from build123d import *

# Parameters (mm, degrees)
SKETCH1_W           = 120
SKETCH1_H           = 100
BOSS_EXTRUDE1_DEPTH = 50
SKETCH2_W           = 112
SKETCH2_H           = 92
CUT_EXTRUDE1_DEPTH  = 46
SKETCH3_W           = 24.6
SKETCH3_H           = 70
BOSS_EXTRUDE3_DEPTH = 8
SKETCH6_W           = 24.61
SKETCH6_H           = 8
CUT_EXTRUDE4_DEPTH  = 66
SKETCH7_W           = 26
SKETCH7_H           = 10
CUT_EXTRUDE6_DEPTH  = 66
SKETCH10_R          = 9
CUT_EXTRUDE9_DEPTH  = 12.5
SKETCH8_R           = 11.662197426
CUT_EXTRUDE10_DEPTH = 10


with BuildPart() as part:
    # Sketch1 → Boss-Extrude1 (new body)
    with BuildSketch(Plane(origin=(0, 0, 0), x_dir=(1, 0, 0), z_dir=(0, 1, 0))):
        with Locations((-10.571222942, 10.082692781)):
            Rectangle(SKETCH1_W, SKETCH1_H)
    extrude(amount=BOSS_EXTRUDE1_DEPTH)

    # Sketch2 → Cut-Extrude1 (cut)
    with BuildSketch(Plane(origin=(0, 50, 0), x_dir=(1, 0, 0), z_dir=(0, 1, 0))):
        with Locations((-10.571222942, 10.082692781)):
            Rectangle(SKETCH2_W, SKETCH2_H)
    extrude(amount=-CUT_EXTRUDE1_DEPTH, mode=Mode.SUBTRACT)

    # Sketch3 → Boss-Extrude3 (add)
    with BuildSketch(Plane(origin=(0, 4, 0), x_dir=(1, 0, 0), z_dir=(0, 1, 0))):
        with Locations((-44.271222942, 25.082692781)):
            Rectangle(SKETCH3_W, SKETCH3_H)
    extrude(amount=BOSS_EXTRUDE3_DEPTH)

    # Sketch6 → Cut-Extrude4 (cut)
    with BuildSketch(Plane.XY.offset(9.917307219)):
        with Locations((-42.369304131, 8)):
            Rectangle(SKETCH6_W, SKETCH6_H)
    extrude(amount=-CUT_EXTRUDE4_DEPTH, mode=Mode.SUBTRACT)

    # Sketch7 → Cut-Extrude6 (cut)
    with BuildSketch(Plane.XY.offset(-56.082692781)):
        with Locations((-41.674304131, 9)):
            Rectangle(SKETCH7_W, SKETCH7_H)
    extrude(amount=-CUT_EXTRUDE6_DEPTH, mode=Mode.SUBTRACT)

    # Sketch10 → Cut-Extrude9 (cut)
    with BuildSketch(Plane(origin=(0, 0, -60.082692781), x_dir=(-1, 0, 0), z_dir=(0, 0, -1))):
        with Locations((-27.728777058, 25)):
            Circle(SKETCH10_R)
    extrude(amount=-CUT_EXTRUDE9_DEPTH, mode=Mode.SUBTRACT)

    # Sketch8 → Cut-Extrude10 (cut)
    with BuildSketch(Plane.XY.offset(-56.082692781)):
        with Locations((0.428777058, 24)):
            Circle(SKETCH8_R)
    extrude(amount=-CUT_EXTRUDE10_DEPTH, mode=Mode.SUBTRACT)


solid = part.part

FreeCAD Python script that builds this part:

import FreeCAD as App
import Part
import Sketcher

V = App.Vector

doc = App.newDocument("Part")
body = doc.addObject("PartDesign::Body", "Body")

# Sketch on XZ plane
sketch1 = body.newObject("Sketcher::SketchObject", "Sketch")
sketch1.AttachmentSupport = (doc.getObject("XZ_Plane"), [""])
sketch1.MapMode = "FlatFace"
sketch1.addGeometry(Part.LineSegment(V(-70.571223, -60.082693, 0), V(-70.571223, 39.917307, 0)), False)
sketch1.addGeometry(Part.LineSegment(V(-70.571223, 39.917307, 0), V(49.428777, 39.917307, 0)), False)
sketch1.addGeometry(Part.LineSegment(V(49.428777, 39.917307, 0), V(49.428777, -60.082693, 0)), False)
sketch1.addGeometry(Part.LineSegment(V(49.428777, -60.082693, 0), V(-70.571223, -60.082693, 0)), False)
sketch1.addConstraint(Sketcher.Constraint("Coincident", 0, 2, 1, 1))
sketch1.addConstraint(Sketcher.Constraint("Coincident", 1, 2, 2, 1))
sketch1.addConstraint(Sketcher.Constraint("Coincident", 2, 2, 3, 1))
sketch1.addConstraint(Sketcher.Constraint("Coincident", 3, 2, 0, 1))
sketch1.addConstraint(Sketcher.Constraint("Vertical", 0))
sketch1.addConstraint(Sketcher.Constraint("Horizontal", 1))
sketch1.addConstraint(Sketcher.Constraint("Vertical", 2))
sketch1.addConstraint(Sketcher.Constraint("Horizontal", 3))
sketch1.addConstraint(Sketcher.Constraint("DistanceX", 1, 1, 1, 2, 120.0))
sketch1.addConstraint(Sketcher.Constraint("DistanceY", 0, 1, 0, 2, 100.0))
sketch1.addConstraint(Sketcher.Constraint("DistanceX", 0, 2, -1, 1, 70.571223))
sketch1.addConstraint(Sketcher.Constraint("DistanceY", -1, 1, 0, 2, 39.917307))
pad1 = body.newObject("PartDesign::Pad", "Pad")
pad1.Profile = sketch1
pad1.Length = 50
pad1.Reversed = True

# Sketch on XZ plane
sketch2 = body.newObject("Sketcher::SketchObject", "Sketch001")
sketch2.AttachmentSupport = (doc.getObject("XZ_Plane"), [""])
sketch2.MapMode = "FlatFace"
sketch2.AttachmentOffset = App.Placement(V(0, 0, -50), App.Rotation())
sketch2.addGeometry(Part.LineSegment(V(-66.571223, -56.082693, 0), V(-66.571223, 35.917307, 0)), False)
sketch2.addGeometry(Part.LineSegment(V(-66.571223, 35.917307, 0), V(45.428777, 35.917307, 0)), False)
sketch2.addGeometry(Part.LineSegment(V(45.428777, 35.917307, 0), V(45.428777, -56.082693, 0)), False)
sketch2.addGeometry(Part.LineSegment(V(45.428777, -56.082693, 0), V(-66.571223, -56.082693, 0)), False)
sketch2.addConstraint(Sketcher.Constraint("Coincident", 0, 2, 1, 1))
sketch2.addConstraint(Sketcher.Constraint("Coincident", 1, 2, 2, 1))
sketch2.addConstraint(Sketcher.Constraint("Coincident", 2, 2, 3, 1))
sketch2.addConstraint(Sketcher.Constraint("Coincident", 3, 2, 0, 1))
sketch2.addConstraint(Sketcher.Constraint("Vertical", 0))
sketch2.addConstraint(Sketcher.Constraint("Horizontal", 1))
sketch2.addConstraint(Sketcher.Constraint("Vertical", 2))
sketch2.addConstraint(Sketcher.Constraint("Horizontal", 3))
sketch2.addConstraint(Sketcher.Constraint("DistanceX", 1, 1, 1, 2, 112.0))
sketch2.addConstraint(Sketcher.Constraint("DistanceY", 0, 1, 0, 2, 92.0))
sketch2.addConstraint(Sketcher.Constraint("DistanceX", 0, 2, -1, 1, 66.571223))
sketch2.addConstraint(Sketcher.Constraint("DistanceY", -1, 1, 0, 2, 35.917307))
pocket1 = body.newObject("PartDesign::Pocket", "Pocket")
pocket1.Profile = sketch2
pocket1.Length = 46
pocket1.Reversed = True

# Sketch on XZ plane
sketch3 = body.newObject("Sketcher::SketchObject", "Sketch002")
sketch3.AttachmentSupport = (doc.getObject("XZ_Plane"), [""])
sketch3.MapMode = "FlatFace"
sketch3.AttachmentOffset = App.Placement(V(0, 0, -4), App.Rotation())
sketch3.addGeometry(Part.LineSegment(V(-56.571223, -60.082693, 0), V(-56.571223, 9.917307, 0)), False)
sketch3.addGeometry(Part.LineSegment(V(-56.571223, 9.917307, 0), V(-31.971223, 9.917307, 0)), False)
sketch3.addGeometry(Part.LineSegment(V(-31.971223, 9.917307, 0), V(-31.971223, -60.082693, 0)), False)
sketch3.addGeometry(Part.LineSegment(V(-31.971223, -60.082693, 0), V(-56.571223, -60.082693, 0)), False)
sketch3.addConstraint(Sketcher.Constraint("Coincident", 0, 2, 1, 1))
sketch3.addConstraint(Sketcher.Constraint("Coincident", 1, 2, 2, 1))
sketch3.addConstraint(Sketcher.Constraint("Coincident", 2, 2, 3, 1))
sketch3.addConstraint(Sketcher.Constraint("Coincident", 3, 2, 0, 1))
sketch3.addConstraint(Sketcher.Constraint("Vertical", 0))
sketch3.addConstraint(Sketcher.Constraint("Horizontal", 1))
sketch3.addConstraint(Sketcher.Constraint("Vertical", 2))
sketch3.addConstraint(Sketcher.Constraint("Horizontal", 3))
sketch3.addConstraint(Sketcher.Constraint("DistanceY", 0, 1, 0, 2, 70.0))
sketch3.addConstraint(Sketcher.Constraint("DistanceX", 1, 1, 1, 2, 24.6))
sketch3.addConstraint(Sketcher.Constraint("DistanceX", 0, 2, -1, 1, 56.571223))
sketch3.addConstraint(Sketcher.Constraint("DistanceY", -1, 1, 0, 2, 9.917307))
pad2 = body.newObject("PartDesign::Pad", "Pad001")
pad2.Profile = sketch3
pad2.Length = 8
pad2.Reversed = True

# Sketch on XY plane
sketch4 = body.newObject("Sketcher::SketchObject", "Sketch003")
sketch4.AttachmentSupport = (doc.getObject("XY_Plane"), [""])
sketch4.MapMode = "FlatFace"
sketch4.AttachmentOffset = App.Placement(V(0, 0, 9.917307), App.Rotation())
sketch4.addGeometry(Part.LineSegment(V(-54.674304, 12, 0), V(-54.674304, 4, 0)), False)
sketch4.addGeometry(Part.LineSegment(V(-54.674304, 4, 0), V(-30.064304, 4, 0)), False)
sketch4.addGeometry(Part.LineSegment(V(-30.064304, 4, 0), V(-30.064304, 12, 0)), False)
sketch4.addGeometry(Part.LineSegment(V(-30.064304, 12, 0), V(-54.674304, 12, 0)), False)
sketch4.addConstraint(Sketcher.Constraint("Coincident", 0, 2, 1, 1))
sketch4.addConstraint(Sketcher.Constraint("Coincident", 1, 2, 2, 1))
sketch4.addConstraint(Sketcher.Constraint("Coincident", 2, 2, 3, 1))
sketch4.addConstraint(Sketcher.Constraint("Coincident", 3, 2, 0, 1))
sketch4.addConstraint(Sketcher.Constraint("Vertical", 0))
sketch4.addConstraint(Sketcher.Constraint("Horizontal", 1))
sketch4.addConstraint(Sketcher.Constraint("Vertical", 2))
sketch4.addConstraint(Sketcher.Constraint("Horizontal", 3))
sketch4.addConstraint(Sketcher.Constraint("DistanceY", 0, 2, 0, 1, 8.0))
sketch4.addConstraint(Sketcher.Constraint("DistanceY", -1, 1, 0, 2, 4.0))
sketch4.addConstraint(Sketcher.Constraint("DistanceX", 1, 1, 1, 2, 24.61))
sketch4.addConstraint(Sketcher.Constraint("DistanceX", 0, 2, -1, 1, 54.674304))
pocket2 = body.newObject("PartDesign::Pocket", "Pocket001")
pocket2.Profile = sketch4
pocket2.Length = 66

# Sketch on XY plane
sketch5 = body.newObject("Sketcher::SketchObject", "Sketch004")
sketch5.AttachmentSupport = (doc.getObject("XY_Plane"), [""])
sketch5.MapMode = "FlatFace"
sketch5.AttachmentOffset = App.Placement(V(0, 0, -56.082693), App.Rotation())
sketch5.addGeometry(Part.LineSegment(V(-54.674304, 14, 0), V(-54.674304, 4, 0)), False)
sketch5.addGeometry(Part.LineSegment(V(-54.674304, 4, 0), V(-28.674304, 4, 0)), False)
sketch5.addGeometry(Part.LineSegment(V(-28.674304, 4, 0), V(-28.674304, 14, 0)), False)
sketch5.addGeometry(Part.LineSegment(V(-28.674304, 14, 0), V(-54.674304, 14, 0)), False)
sketch5.addConstraint(Sketcher.Constraint("Coincident", 0, 2, 1, 1))
sketch5.addConstraint(Sketcher.Constraint("Coincident", 1, 2, 2, 1))
sketch5.addConstraint(Sketcher.Constraint("Coincident", 2, 2, 3, 1))
sketch5.addConstraint(Sketcher.Constraint("Coincident", 3, 2, 0, 1))
sketch5.addConstraint(Sketcher.Constraint("Vertical", 0))
sketch5.addConstraint(Sketcher.Constraint("Horizontal", 1))
sketch5.addConstraint(Sketcher.Constraint("Vertical", 2))
sketch5.addConstraint(Sketcher.Constraint("Horizontal", 3))
sketch5.addConstraint(Sketcher.Constraint("DistanceX", 1, 1, 1, 2, 26.0))
sketch5.addConstraint(Sketcher.Constraint("DistanceY", 0, 2, 0, 1, 10.0))
sketch5.addConstraint(Sketcher.Constraint("DistanceY", -1, 1, 0, 2, 4.0))
sketch5.addConstraint(Sketcher.Constraint("DistanceX", 0, 2, -1, 1, 54.674304))
pocket3 = body.newObject("PartDesign::Pocket", "Pocket002")
pocket3.Profile = sketch5
pocket3.Length = 66

# Sketch on XY plane
sketch6 = body.newObject("Sketcher::SketchObject", "Sketch005")
sketch6.AttachmentSupport = (doc.getObject("XY_Plane"), [""])
sketch6.MapMode = "FlatFace"
sketch6.AttachmentOffset = App.Placement(V(0, 0, -60.082693), App.Rotation())
sketch6.addGeometry(Part.Circle(V(27.728777, 25, 0), V(0, 0, 1), 9), False)
sketch6.addConstraint(Sketcher.Constraint("Diameter", 0, 18.0))
sketch6.addConstraint(Sketcher.Constraint("DistanceY", -1, 1, 0, 3, 25.0))
sketch6.addConstraint(Sketcher.Constraint("DistanceX", -1, 1, 0, 3, 27.728777))
pocket4 = body.newObject("PartDesign::Pocket", "Pocket003")
pocket4.Profile = sketch6
pocket4.Length = 12.5
pocket4.Reversed = True

# Sketch on XY plane
sketch7 = body.newObject("Sketcher::SketchObject", "Sketch006")
sketch7.AttachmentSupport = (doc.getObject("XY_Plane"), [""])
sketch7.MapMode = "FlatFace"
sketch7.AttachmentOffset = App.Placement(V(0, 0, -56.082693), App.Rotation())
sketch7.addGeometry(Part.Circle(V(0.428777, 24, 0), V(0, 0, 1), 11.662197), False)
sketch7.addConstraint(Sketcher.Constraint("DistanceY", -1, 1, 0, 3, 24.0))
sketch7.addConstraint(Sketcher.Constraint("Diameter", 0, 23.324395))
sketch7.addConstraint(Sketcher.Constraint("DistanceX", -1, 1, 0, 3, 0.428777))
pocket5 = body.newObject("PartDesign::Pocket", "Pocket004")
pocket5.Profile = sketch7
pocket5.Length = 10

doc.recompute()
